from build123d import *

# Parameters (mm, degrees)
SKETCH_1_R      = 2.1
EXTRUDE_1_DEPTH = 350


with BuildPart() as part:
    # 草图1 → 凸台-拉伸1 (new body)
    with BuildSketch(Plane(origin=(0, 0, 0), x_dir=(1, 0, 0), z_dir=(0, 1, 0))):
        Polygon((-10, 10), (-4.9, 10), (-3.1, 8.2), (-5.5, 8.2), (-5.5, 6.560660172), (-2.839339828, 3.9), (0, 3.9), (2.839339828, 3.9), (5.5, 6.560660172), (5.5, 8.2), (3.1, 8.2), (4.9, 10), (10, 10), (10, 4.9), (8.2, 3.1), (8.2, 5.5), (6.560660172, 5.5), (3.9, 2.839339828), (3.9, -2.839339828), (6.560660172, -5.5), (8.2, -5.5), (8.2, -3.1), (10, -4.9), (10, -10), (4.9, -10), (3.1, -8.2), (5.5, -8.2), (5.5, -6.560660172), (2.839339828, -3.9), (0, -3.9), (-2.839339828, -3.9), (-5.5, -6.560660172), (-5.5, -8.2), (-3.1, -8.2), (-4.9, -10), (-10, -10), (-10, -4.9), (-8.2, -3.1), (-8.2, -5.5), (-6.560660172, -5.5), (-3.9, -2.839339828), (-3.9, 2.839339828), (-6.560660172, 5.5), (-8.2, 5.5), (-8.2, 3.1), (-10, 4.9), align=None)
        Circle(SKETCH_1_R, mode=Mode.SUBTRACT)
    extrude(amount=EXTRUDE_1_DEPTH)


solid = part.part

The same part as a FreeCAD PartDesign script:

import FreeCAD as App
import Part
import Sketcher

V = App.Vector

doc = App.newDocument("Part")
body = doc.addObject("PartDesign::Body", "Body")

# Sketch on XZ plane
sketch1 = body.newObject("Sketcher::SketchObject", "Sketch")
sketch1.AttachmentSupport = (doc.getObject("XZ_Plane"), [""])
sketch1.MapMode = "FlatFace"
sketch1.addGeometry(Part.LineSegment(V(-4.9, -10, 0), V(-10, -10, 0)), False)
sketch1.addGeometry(Part.LineSegment(V(-10, -10, 0), V(-10, -4.9, 0)), False)
sketch1.addGeometry(Part.LineSegment(V(-10, -4.9, 0), V(-8.2, -3.1, 0)), False)
sketch1.addGeometry(Part.LineSegment(V(-8.2, -3.1, 0), V(-8.2, -5.5, 0)), False)
sketch1.addGeometry(Part.LineSegment(V(-8.2, -5.5, 0), V(-6.56066, -5.5, 0)), False)
sketch1.addGeometry(Part.LineSegment(V(-6.56066, -5.5, 0), V(-3.9, -2.83934, 0)), False)
sketch1.addGeometry(Part.LineSegment(V(-3.9, -2.83934, 0), V(-3.9, 2.83934, 0)), False)
sketch1.addGeometry(Part.LineSegment(V(-3.9, 2.83934, 0), V(-6.56066, 5.5, 0)), False)
sketch1.addGeometry(Part.LineSegment(V(-6.56066, 5.5, 0), V(-8.2, 5.5, 0)), False)
sketch1.addGeometry(Part.LineSegment(V(-8.2, 5.5, 0), V(-8.2, 3.1, 0)), False)
sketch1.addGeometry(Part.LineSegment(V(-8.2, 3.1, 0), V(-10, 4.9, 0)), False)
sketch1.addGeometry(Part.LineSegment(V(-10, 4.9, 0), V(-10, 10, 0)), False)
sketch1.addGeometry(Part.LineSegment(V(-10, 10, 0), V(-4.9, 10, 0)), False)
sketch1.addGeometry(Part.LineSegment(V(-4.9, 10, 0), V(-3.1, 8.2, 0)), False)
sketch1.addGeometry(Part.LineSegment(V(-3.1, 8.2, 0), V(-5.5, 8.2, 0)), False)
sketch1.addGeometry(Part.LineSegment(V(-5.5, 8.2, 0), V(-5.5, 6.56066, 0)), False)
sketch1.addGeometry(Part.LineSegment(V(-5.5, 6.56066, 0), V(-2.83934, 3.9, 0)), False)
sketch1.addGeometry(Part.LineSegment(V(-2.83934, 3.9, 0), V(2.83934, 3.9, 0)), False)
sketch1.addGeometry(Part.LineSegment(V(2.83934, 3.9, 0), V(5.5, 6.56066, 0)), False)
sketch1.addGeometry(Part.LineSegment(V(5.5, 6.56066, 0), V(5.5, 8.2, 0)), False)
sketch1.addGeometry(Part.LineSegment(V(5.5, 8.2, 0), V(3.1, 8.2, 0)), False)
sketch1.addGeometry(Part.LineSegment(V(3.1, 8.2, 0), V(4.9, 10, 0)), False)
sketch1.addGeometry(Part.LineSegment(V(4.9, 10, 0), V(10, 10, 0)), False)
sketch1.addGeometry(Part.LineSegment(V(10, 10, 0), V(10, 4.9, 0)), False)
sketch1.addGeometry(Part.LineSegment(V(10, 4.9, 0), V(8.2, 3.1, 0)), False)
sketch1.addGeometry(Part.LineSegment(V(8.2, 3.1, 0), V(8.2, 5.5, 0)), False)
sketch1.addGeometry(Part.LineSegment(V(8.2, 5.5, 0), V(6.56066, 5.5, 0)), False)
sketch1.addGeometry(Part.LineSegment(V(6.56066, 5.5, 0), V(3.9, 2.83934, 0)), False)
sketch1.addGeometry(Part.LineSegment(V(3.9, 2.83934, 0), V(3.9, -2.83934, 0)), False)
sketch1.addGeometry(Part.LineSegment(V(3.9, -2.83934, 0), V(6.56066, -5.5, 0)), False)
sketch1.addGeometry(Part.LineSegment(V(6.56066, -5.5, 0), V(8.2, -5.5, 0)), False)
sketch1.addGeometry(Part.LineSegment(V(8.2, -5.5, 0), V(8.2, -3.1, 0)), False)
sketch1.addGeometry(Part.LineSegment(V(8.2, -3.1, 0), V(10, -4.9, 0)), False)
sketch1.addGeometry(Part.LineSegment(V(10, -4.9, 0), V(10, -10, 0)), False)
sketch1.addGeometry(Part.LineSegment(V(10, -10, 0), V(4.9, -10, 0)), False)
sketch1.addGeometry(Part.LineSegment(V(4.9, -10, 0), V(3.1, -8.2, 0)), False)
sketch1.addGeometry(Part.LineSegment(V(3.1, -8.2, 0), V(5.5, -8.2, 0)), False)
sketch1.addGeometry(Part.LineSegment(V(5.5, -8.2, 0), V(5.5, -6.56066, 0)), False)
sketch1.addGeometry(Part.LineSegment(V(5.5, -6.56066, 0), V(2.83934, -3.9, 0)), False)
sketch1.addGeometry(Part.LineSegment(V(2.83934, -3.9, 0), V(-2.83934, -3.9, 0)), False)
sketch1.addGeometry(Part.LineSegment(V(-2.83934, -3.9, 0), V(-5.5, -6.56066, 0)), False)
sketch1.addGeometry(Part.LineSegment(V(-5.5, -6.56066, 0), V(-5.5, -8.2, 0)), False)
sketch1.addGeometry(Part.LineSegment(V(-5.5, -8.2, 0), V(-3.1, -8.2, 0)), False)
sketch1.addGeometry(Part.LineSegment(V(-3.1, -8.2, 0), V(-4.9, -10, 0)), False)
sketch1.addGeometry(Part.Circle(V(0, 0, 0), V(0, 0, 1), 2.1), False)
sketch1.addConstraint(Sketcher.Constraint("Coincident", 0, 2, 1, 1))
sketch1.addConstraint(Sketcher.Constraint("Coincident", 1, 2, 2, 1))
sketch1.addConstraint(Sketcher.Constraint("Coincident", 2, 2, 3, 1))
sketch1.addConstraint(Sketcher.Constraint("Coincident", 3, 2, 4, 1))
sketch1.addConstraint(Sketcher.Constraint("Coincident", 4, 2, 5, 1))
sketch1.addConstraint(Sketcher.Constraint("Coincident", 5, 2, 6, 1))
sketch1.addConstraint(Sketcher.Constraint("Coincident", 6, 2, 7, 1))
sketch1.addConstraint(Sketcher.Constraint("Coincident", 7, 2, 8, 1))
sketch1.addConstraint(Sketcher.Constraint("Coincident", 8, 2, 9, 1))
sketch1.addConstraint(Sketcher.Constraint("Coincident", 9, 2, 10, 1))
sketch1.addConstraint(Sketcher.Constraint("Coincident", 10, 2, 11, 1))
sketch1.addConstraint(Sketcher.Constraint("Coincident", 11, 2, 12, 1))
sketch1.addConstraint(Sketcher.Constraint("Coincident", 12, 2, 13, 1))
sketch1.addConstraint(Sketcher.Constraint("Coincident", 13, 2, 14, 1))
sketch1.addConstraint(Sketcher.Constraint("Coincident", 14, 2, 15, 1))
sketch1.addConstraint(Sketcher.Constraint("Coincident", 15, 2, 16, 1))
sketch1.addConstraint(Sketcher.Constraint("Coincident", 16, 2, 17, 1))
sketch1.addConstraint(Sketcher.Constraint("Coincident", 17, 2, 18, 1))
sketch1.addConstraint(Sketcher.Constraint("Coincident", 18, 2, 19, 1))
sketch1.addConstraint(Sketcher.Constraint("Coincident", 19, 2, 20, 1))
sketch1.addConstraint(Sketcher.Constraint("Coincident", 20, 2, 21, 1))
sketch1.addConstraint(Sketcher.Constraint("Coincident", 21, 2, 22, 1))
sketch1.addConstraint(Sketcher.Constraint("Coincident", 22, 2, 23, 1))
sketch1.addConstraint(Sketcher.Constraint("Coincident", 23, 2, 24, 1))
sketch1.addConstraint(Sketcher.Constraint("Coincident", 24, 2, 25, 1))
sketch1.addConstraint(Sketcher.Constraint("Coincident", 25, 2, 26, 1))
sketch1.addConstraint(Sketcher.Constraint("Coincident", 26, 2, 27, 1))
sketch1.addConstraint(Sketcher.Constraint("Coincident", 27, 2, 28, 1))
sketch1.addConstraint(Sketcher.Constraint("Coincident", 28, 2, 29, 1))
sketch1.addConstraint(Sketcher.Constraint("Coincident", 29, 2, 30, 1))
sketch1.addConstraint(Sketcher.Constraint("Coincident", 30, 2, 31, 1))
sketch1.addConstraint(Sketcher.Constraint("Coincident", 31, 2, 32, 1))
sketch1.addConstraint(Sketcher.Constraint("Coincident", 32, 2, 33, 1))
sketch1.addConstraint(Sketcher.Constraint("Coincident", 33, 2, 34, 1))
sketch1.addConstraint(Sketcher.Constraint("Coincident", 34, 2, 35, 1))
sketch1.addConstraint(Sketcher.Constraint("Coincident", 35, 2, 36, 1))
sketch1.addConstraint(Sketcher.Constraint("Coincident", 36, 2, 37, 1))
sketch1.addConstraint(Sketcher.Constraint("Coincident", 37, 2, 38, 1))
sketch1.addConstraint(Sketcher.Constraint("Coincident", 38, 2, 39, 1))
sketch1.addConstraint(Sketcher.Constraint("Coincident", 39, 2, 40, 1))
sketch1.addConstraint(Sketcher.Constraint("Coincident", 40, 2, 41, 1))
sketch1.addConstraint(Sketcher.Constraint("Coincident", 41, 2, 42, 1))
sketch1.addConstraint(Sketcher.Constraint("Coincident", 42, 2, 43, 1))
sketch1.addConstraint(Sketcher.Constraint("Coincident", 43, 2, 0, 1))
sketch1.addConstraint(Sketcher.Constraint("Horizontal", 0))
sketch1.addConstraint(Sketcher.Constraint("Vertical", 1))
sketch1.addConstraint(Sketcher.Constraint("Vertical", 3))
sketch1.addConstraint(Sketcher.Constraint("Horizontal", 4))
sketch1.addConstraint(Sketcher.Constraint("Vertical", 6))
sketch1.addConstraint(Sketcher.Constraint("Horizontal", 8))
sketch1.addConstraint(Sketcher.Constraint("Vertical", 9))
sketch1.addConstraint(Sketcher.Constraint("Vertical", 11))
sketch1.addConstraint(Sketcher.Constraint("Horizontal", 12))
sketch1.addConstraint(Sketcher.Constraint("Horizontal", 14))
sketch1.addConstraint(Sketcher.Constraint("Vertical", 15))
sketch1.addConstraint(Sketcher.Constraint("Horizontal", 17))
sketch1.addConstraint(Sketcher.Constraint("Vertical", 19))
sketch1.addConstraint(Sketcher.Constraint("Horizontal", 20))
sketch1.addConstraint(Sketcher.Constraint("Horizontal", 22))
sketch1.addConstraint(Sketcher.Constraint("Vertical", 23))
sketch1.addConstraint(Sketcher.Constraint("Vertical", 25))
sketch1.addConstraint(Sketcher.Constraint("Horizontal", 26))
sketch1.addConstraint(Sketcher.Constraint("Vertical", 28))
sketch1.addConstraint(Sketcher.Constraint("Horizontal", 30))
sketch1.addConstraint(Sketcher.Constraint("Vertical", 31))
sketch1.addConstraint(Sketcher.Constraint("Vertical", 33))
sketch1.addConstraint(Sketcher.Constraint("Horizontal", 34))
sketch1.addConstraint(Sketcher.Constraint("Horizontal", 36))
sketch1.addConstraint(Sketcher.Constraint("Vertical", 37))
sketch1.addConstraint(Sketcher.Constraint("Horizontal", 39))
sketch1.addConstraint(Sketcher.Constraint("Vertical", 41))
sketch1.addConstraint(Sketcher.Constraint("Horizontal", 42))
sketch1.addConstraint(Sketcher.Constraint("Coincident", 44, 3, -1, 1))
sketch1.addConstraint(Sketcher.Constraint("Symmetric", 0, 2, 22, 2, -1, 1))
sketch1.addConstraint(Sketcher.Constraint("Symmetric", 2, 2, 24, 2, -1, 1))
sketch1.addConstraint(Sketcher.Constraint("Symmetric", 4, 2, 26, 2, -1, 1))
sketch1.addConstraint(Sketcher.Constraint("Symmetric", 5, 2, 27, 2, -1, 1))
sketch1.addConstraint(Sketcher.Constraint("Symmetric", 7, 2, 29, 2, -1, 1))
sketch1.addConstraint(Sketcher.Constraint("Symmetric", 9, 2, 31, 2, -1, 1))
sketch1.addConstraint(Sketcher.Constraint("Symmetric", 10, 2, 32, 2, -1, 1))
sketch1.addConstraint(Sketcher.Constraint("Symmetric", 12, 2, 34, 2, -1, 1))
sketch1.addConstraint(Sketcher.Constraint("Symmetric", 13, 2, 35, 2, -1, 1))
sketch1.addConstraint(Sketcher.Constraint("Symmetric", 15, 2, 37, 2, -1, 1))
sketch1.addConstraint(Sketcher.Constraint("Symmetric", 16, 2, 38, 2, -1, 1))
sketch1.addConstraint(Sketcher.Constraint("Symmetric", 18, 2, 40, 2, -1, 1))
sketch1.addConstraint(Sketcher.Constraint("Symmetric", 20, 2, 42, 2, -1, 1))
sketch1.addConstraint(Sketcher.Constraint("Symmetric", 15, 2, 18, 2, -2))
sketch1.addConstraint(Sketcher.Constraint("Symmetric", 13, 2, 20, 2, -2))
sketch1.addConstraint(Sketcher.Constraint("Symmetric", 12, 2, 21, 2, -2))
sketch1.addConstraint(Sketcher.Constraint("Symmetric", 10, 2, 23, 2, -2))
sketch1.addConstraint(Sketcher.Constraint("Symmetric", 9, 2, 24, 2, -2))
sketch1.addConstraint(Sketcher.Constraint("Symmetric", 7, 2, 26, 2, -2))
sketch1.addConstraint(Sketcher.Constraint("Parallel", 2, 5))
sketch1.addConstraint(Sketcher.Constraint("Perpendicular", 5, 7))
sketch1.addConstraint(Sketcher.Constraint("Parallel", 7, 10))
sketch1.addConstraint(Sketcher.Constraint("Parallel", 10, 13))
sketch1.addConstraint(Sketcher.Constraint("Parallel", 13, 16))
sketch1.addConstraint(Sketcher.Constraint("Perpendicular", 16, 18))
sketch1.addConstraint(Sketcher.Constraint("Parallel", 18, 21))
sketch1.addConstraint(Sketcher.Constraint("Perpendicular", 27, 29))
sketch1.addConstraint(Sketcher.Constraint("Perpendicular", 38, 40))
sketch1.addConstraint(Sketcher.Constraint("Parallel", 40, 43))
sketch1.addConstraint(Sketcher.Constraint("Equal", 34, 1))
sketch1.addConstraint(Sketcher.Constraint("Equal", 42, 3))
sketch1.addConstraint(Sketcher.Constraint("Equal", 39, 6))
sketch1.addConstraint(Sketcher.Constraint("Equal", 30, 15))
sketch1.addConstraint(Sketcher.Constraint("Equal", 10, 13))
sketch1.addConstraint(Sketcher.Constraint("Equal", 7, 16))
sketch1.addConstraint(Sketcher.Constraint("Diameter", 44, 4.2))
sketch1.addConstraint(Sketcher.Constraint("DistanceX", 0, 2, 0, 1, 5.1))
sketch1.addConstraint(Sketcher.Constraint("DistanceX", 14, 2, 14, 1, 2.4))
sketch1.addConstraint(Sketcher.Constraint("DistanceX", 0, 2, -1, 1, 10.0))
sketch1.addConstraint(Sketcher.Constraint("DistanceY", 2, 2, 10, 2, 8.0))
sketch1.addConstraint(Sketcher.Constraint("DistanceX", 12, 2, 6, 2, 1.0))
sketch1.addConstraint(Sketcher.Constraint("DistanceX", 4, 1, 4, 2, 1.63934))
pad1 = body.newObject("PartDesign::Pad", "Pad")
pad1.Profile = sketch1
pad1.Length = 350
pad1.Reversed = True

doc.recompute()
